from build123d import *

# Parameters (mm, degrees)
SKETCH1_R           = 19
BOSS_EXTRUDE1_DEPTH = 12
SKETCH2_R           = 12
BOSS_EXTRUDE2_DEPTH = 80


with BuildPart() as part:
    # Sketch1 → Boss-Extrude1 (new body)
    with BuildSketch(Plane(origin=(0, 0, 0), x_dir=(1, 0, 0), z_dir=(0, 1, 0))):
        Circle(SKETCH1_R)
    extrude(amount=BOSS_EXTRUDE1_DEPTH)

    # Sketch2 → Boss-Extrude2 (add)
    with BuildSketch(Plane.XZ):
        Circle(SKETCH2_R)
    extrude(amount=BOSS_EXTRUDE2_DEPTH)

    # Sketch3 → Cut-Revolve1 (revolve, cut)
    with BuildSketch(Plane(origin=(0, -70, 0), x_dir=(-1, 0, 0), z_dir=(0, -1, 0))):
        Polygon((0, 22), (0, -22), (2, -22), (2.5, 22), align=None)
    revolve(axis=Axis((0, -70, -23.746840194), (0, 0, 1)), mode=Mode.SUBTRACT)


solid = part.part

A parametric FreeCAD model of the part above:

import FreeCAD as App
import Part
import Sketcher
from FreeCAD import Vector


def add_polygon(sketch, points):
    """Adds a closed chain of lines whose ends are joined by coincident constraints."""
    first, n = sketch.GeometryCount, len(points)
    for a, b in zip(points, points[1:] + points[:1]):
        sketch.addGeometry(Part.LineSegment(App.Vector(*a, 0), App.Vector(*b, 0)), False)
    for i in range(n):
        sketch.addConstraint(Sketcher.Constraint("Coincident", first + i, 2, first + (i + 1) % n, 1))

doc = App.newDocument("Part")
body = doc.addObject("PartDesign::Body", "Body")

# Sketch on XZ plane
sketch1 = body.newObject("Sketcher::SketchObject", "Sketch")
sketch1.AttachmentSupport = (doc.getObject("XZ_Plane"), [""])
sketch1.MapMode = "FlatFace"
sketch1.addGeometry(Part.Circle(Vector(0, 0, 0), Vector(0, 0, 1), 19), False)
sketch1.addConstraint([
    Sketcher.Constraint("Coincident", 0, 3, -1, 1),
    Sketcher.Constraint("Diameter", 0, 38.0),
])
pad1 = body.newObject("PartDesign::Pad", "Pad")
pad1.Profile = sketch1
pad1.Length = 12
pad1.Reversed = True

# Sketch on XZ plane
sketch2 = body.newObject("Sketcher::SketchObject", "Sketch001")
sketch2.AttachmentSupport = (doc.getObject("XZ_Plane"), [""])
sketch2.MapMode = "FlatFace"
sketch2.addGeometry(Part.Circle(Vector(0, 0, 0), Vector(0, 0, 1), 12), False)
sketch2.addConstraint([
    Sketcher.Constraint("Coincident", 0, 3, -1, 1),
    Sketcher.Constraint("Diameter", 0, 24.0),
])
pad2 = body.newObject("PartDesign::Pad", "Pad001")
pad2.Profile = sketch2
pad2.Length = 80

# Sketch on XZ plane
sketch3 = body.newObject("Sketcher::SketchObject", "Sketch002")
sketch3.AttachmentSupport = (doc.getObject("XZ_Plane"), [""])
sketch3.MapMode = "FlatFace"
sketch3.AttachmentOffset = App.Placement(Vector(0, 0, 70), App.Rotation())
add_polygon(sketch3, [(0, -22), (0, 22), (-2, 22), (-2.5, -22)])  # lines 0-3
sketch3.addConstraint([
    Sketcher.Constraint("Vertical", 0),
    Sketcher.Constraint("Horizontal", 1),
    Sketcher.Constraint("Horizontal", 3),
    Sketcher.Constraint("Symmetric", 0, 2, 3, 2, -1, 1),
    Sketcher.Constraint("DistanceX", 1, 2, 1, 1, 2.0),
    Sketcher.Constraint("DistanceY", 0, 1, 0, 2, 44.0),
    Sketcher.Constraint("DistanceX", 3, 1, 3, 2, 2.5),
])
groove = body.newObject("PartDesign::Groove", "Groove")
groove.Profile = sketch3
groove.ReferenceAxis = (sketch3, ["V_Axis"])
groove.Angle = 360

doc.recompute()
